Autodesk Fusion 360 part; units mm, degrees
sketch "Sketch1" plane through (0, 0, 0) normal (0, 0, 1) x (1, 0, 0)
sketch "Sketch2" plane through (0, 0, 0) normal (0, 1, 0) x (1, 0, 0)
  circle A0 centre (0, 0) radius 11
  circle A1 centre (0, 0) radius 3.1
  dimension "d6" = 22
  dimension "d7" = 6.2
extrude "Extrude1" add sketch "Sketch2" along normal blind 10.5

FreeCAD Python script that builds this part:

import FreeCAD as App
import Part
import Sketcher
from FreeCAD import Vector
Q = App.Units.Quantity

doc = App.newDocument("Part")
body = doc.addObject("PartDesign::Body", "Body")

# Sketch on XZ plane
sketch1 = body.newObject("Sketcher::SketchObject", "Sketch")
sketch1.AttachmentSupport = (doc.getObject("XZ_Plane"), [""])
sketch1.MapMode = "FlatFace"
sketch1.addGeometry(Part.Circle(Vector(0, 0, 0), Vector(0, 0, 1), 11), False)
sketch1.addGeometry(Part.Circle(Vector(0, 0, 0), Vector(0, 0, 1), 3.1), False)
sketch1.addConstraint(Sketcher.Constraint("Coincident", 0, 3, -1, 1))
sketch1.addConstraint(Sketcher.Constraint("Coincident", 1, 3, -1, 1))
sketch1.addConstraint(Sketcher.Constraint("Diameter", 0, Q("22 mm")))
sketch1.addConstraint(Sketcher.Constraint("Diameter", 1, Q("6.2 mm")))
pad1 = body.newObject("PartDesign::Pad", "Pad")
pad1.Profile = sketch1
pad1.Length = 10.5
pad1.Reversed = True

doc.recompute()
